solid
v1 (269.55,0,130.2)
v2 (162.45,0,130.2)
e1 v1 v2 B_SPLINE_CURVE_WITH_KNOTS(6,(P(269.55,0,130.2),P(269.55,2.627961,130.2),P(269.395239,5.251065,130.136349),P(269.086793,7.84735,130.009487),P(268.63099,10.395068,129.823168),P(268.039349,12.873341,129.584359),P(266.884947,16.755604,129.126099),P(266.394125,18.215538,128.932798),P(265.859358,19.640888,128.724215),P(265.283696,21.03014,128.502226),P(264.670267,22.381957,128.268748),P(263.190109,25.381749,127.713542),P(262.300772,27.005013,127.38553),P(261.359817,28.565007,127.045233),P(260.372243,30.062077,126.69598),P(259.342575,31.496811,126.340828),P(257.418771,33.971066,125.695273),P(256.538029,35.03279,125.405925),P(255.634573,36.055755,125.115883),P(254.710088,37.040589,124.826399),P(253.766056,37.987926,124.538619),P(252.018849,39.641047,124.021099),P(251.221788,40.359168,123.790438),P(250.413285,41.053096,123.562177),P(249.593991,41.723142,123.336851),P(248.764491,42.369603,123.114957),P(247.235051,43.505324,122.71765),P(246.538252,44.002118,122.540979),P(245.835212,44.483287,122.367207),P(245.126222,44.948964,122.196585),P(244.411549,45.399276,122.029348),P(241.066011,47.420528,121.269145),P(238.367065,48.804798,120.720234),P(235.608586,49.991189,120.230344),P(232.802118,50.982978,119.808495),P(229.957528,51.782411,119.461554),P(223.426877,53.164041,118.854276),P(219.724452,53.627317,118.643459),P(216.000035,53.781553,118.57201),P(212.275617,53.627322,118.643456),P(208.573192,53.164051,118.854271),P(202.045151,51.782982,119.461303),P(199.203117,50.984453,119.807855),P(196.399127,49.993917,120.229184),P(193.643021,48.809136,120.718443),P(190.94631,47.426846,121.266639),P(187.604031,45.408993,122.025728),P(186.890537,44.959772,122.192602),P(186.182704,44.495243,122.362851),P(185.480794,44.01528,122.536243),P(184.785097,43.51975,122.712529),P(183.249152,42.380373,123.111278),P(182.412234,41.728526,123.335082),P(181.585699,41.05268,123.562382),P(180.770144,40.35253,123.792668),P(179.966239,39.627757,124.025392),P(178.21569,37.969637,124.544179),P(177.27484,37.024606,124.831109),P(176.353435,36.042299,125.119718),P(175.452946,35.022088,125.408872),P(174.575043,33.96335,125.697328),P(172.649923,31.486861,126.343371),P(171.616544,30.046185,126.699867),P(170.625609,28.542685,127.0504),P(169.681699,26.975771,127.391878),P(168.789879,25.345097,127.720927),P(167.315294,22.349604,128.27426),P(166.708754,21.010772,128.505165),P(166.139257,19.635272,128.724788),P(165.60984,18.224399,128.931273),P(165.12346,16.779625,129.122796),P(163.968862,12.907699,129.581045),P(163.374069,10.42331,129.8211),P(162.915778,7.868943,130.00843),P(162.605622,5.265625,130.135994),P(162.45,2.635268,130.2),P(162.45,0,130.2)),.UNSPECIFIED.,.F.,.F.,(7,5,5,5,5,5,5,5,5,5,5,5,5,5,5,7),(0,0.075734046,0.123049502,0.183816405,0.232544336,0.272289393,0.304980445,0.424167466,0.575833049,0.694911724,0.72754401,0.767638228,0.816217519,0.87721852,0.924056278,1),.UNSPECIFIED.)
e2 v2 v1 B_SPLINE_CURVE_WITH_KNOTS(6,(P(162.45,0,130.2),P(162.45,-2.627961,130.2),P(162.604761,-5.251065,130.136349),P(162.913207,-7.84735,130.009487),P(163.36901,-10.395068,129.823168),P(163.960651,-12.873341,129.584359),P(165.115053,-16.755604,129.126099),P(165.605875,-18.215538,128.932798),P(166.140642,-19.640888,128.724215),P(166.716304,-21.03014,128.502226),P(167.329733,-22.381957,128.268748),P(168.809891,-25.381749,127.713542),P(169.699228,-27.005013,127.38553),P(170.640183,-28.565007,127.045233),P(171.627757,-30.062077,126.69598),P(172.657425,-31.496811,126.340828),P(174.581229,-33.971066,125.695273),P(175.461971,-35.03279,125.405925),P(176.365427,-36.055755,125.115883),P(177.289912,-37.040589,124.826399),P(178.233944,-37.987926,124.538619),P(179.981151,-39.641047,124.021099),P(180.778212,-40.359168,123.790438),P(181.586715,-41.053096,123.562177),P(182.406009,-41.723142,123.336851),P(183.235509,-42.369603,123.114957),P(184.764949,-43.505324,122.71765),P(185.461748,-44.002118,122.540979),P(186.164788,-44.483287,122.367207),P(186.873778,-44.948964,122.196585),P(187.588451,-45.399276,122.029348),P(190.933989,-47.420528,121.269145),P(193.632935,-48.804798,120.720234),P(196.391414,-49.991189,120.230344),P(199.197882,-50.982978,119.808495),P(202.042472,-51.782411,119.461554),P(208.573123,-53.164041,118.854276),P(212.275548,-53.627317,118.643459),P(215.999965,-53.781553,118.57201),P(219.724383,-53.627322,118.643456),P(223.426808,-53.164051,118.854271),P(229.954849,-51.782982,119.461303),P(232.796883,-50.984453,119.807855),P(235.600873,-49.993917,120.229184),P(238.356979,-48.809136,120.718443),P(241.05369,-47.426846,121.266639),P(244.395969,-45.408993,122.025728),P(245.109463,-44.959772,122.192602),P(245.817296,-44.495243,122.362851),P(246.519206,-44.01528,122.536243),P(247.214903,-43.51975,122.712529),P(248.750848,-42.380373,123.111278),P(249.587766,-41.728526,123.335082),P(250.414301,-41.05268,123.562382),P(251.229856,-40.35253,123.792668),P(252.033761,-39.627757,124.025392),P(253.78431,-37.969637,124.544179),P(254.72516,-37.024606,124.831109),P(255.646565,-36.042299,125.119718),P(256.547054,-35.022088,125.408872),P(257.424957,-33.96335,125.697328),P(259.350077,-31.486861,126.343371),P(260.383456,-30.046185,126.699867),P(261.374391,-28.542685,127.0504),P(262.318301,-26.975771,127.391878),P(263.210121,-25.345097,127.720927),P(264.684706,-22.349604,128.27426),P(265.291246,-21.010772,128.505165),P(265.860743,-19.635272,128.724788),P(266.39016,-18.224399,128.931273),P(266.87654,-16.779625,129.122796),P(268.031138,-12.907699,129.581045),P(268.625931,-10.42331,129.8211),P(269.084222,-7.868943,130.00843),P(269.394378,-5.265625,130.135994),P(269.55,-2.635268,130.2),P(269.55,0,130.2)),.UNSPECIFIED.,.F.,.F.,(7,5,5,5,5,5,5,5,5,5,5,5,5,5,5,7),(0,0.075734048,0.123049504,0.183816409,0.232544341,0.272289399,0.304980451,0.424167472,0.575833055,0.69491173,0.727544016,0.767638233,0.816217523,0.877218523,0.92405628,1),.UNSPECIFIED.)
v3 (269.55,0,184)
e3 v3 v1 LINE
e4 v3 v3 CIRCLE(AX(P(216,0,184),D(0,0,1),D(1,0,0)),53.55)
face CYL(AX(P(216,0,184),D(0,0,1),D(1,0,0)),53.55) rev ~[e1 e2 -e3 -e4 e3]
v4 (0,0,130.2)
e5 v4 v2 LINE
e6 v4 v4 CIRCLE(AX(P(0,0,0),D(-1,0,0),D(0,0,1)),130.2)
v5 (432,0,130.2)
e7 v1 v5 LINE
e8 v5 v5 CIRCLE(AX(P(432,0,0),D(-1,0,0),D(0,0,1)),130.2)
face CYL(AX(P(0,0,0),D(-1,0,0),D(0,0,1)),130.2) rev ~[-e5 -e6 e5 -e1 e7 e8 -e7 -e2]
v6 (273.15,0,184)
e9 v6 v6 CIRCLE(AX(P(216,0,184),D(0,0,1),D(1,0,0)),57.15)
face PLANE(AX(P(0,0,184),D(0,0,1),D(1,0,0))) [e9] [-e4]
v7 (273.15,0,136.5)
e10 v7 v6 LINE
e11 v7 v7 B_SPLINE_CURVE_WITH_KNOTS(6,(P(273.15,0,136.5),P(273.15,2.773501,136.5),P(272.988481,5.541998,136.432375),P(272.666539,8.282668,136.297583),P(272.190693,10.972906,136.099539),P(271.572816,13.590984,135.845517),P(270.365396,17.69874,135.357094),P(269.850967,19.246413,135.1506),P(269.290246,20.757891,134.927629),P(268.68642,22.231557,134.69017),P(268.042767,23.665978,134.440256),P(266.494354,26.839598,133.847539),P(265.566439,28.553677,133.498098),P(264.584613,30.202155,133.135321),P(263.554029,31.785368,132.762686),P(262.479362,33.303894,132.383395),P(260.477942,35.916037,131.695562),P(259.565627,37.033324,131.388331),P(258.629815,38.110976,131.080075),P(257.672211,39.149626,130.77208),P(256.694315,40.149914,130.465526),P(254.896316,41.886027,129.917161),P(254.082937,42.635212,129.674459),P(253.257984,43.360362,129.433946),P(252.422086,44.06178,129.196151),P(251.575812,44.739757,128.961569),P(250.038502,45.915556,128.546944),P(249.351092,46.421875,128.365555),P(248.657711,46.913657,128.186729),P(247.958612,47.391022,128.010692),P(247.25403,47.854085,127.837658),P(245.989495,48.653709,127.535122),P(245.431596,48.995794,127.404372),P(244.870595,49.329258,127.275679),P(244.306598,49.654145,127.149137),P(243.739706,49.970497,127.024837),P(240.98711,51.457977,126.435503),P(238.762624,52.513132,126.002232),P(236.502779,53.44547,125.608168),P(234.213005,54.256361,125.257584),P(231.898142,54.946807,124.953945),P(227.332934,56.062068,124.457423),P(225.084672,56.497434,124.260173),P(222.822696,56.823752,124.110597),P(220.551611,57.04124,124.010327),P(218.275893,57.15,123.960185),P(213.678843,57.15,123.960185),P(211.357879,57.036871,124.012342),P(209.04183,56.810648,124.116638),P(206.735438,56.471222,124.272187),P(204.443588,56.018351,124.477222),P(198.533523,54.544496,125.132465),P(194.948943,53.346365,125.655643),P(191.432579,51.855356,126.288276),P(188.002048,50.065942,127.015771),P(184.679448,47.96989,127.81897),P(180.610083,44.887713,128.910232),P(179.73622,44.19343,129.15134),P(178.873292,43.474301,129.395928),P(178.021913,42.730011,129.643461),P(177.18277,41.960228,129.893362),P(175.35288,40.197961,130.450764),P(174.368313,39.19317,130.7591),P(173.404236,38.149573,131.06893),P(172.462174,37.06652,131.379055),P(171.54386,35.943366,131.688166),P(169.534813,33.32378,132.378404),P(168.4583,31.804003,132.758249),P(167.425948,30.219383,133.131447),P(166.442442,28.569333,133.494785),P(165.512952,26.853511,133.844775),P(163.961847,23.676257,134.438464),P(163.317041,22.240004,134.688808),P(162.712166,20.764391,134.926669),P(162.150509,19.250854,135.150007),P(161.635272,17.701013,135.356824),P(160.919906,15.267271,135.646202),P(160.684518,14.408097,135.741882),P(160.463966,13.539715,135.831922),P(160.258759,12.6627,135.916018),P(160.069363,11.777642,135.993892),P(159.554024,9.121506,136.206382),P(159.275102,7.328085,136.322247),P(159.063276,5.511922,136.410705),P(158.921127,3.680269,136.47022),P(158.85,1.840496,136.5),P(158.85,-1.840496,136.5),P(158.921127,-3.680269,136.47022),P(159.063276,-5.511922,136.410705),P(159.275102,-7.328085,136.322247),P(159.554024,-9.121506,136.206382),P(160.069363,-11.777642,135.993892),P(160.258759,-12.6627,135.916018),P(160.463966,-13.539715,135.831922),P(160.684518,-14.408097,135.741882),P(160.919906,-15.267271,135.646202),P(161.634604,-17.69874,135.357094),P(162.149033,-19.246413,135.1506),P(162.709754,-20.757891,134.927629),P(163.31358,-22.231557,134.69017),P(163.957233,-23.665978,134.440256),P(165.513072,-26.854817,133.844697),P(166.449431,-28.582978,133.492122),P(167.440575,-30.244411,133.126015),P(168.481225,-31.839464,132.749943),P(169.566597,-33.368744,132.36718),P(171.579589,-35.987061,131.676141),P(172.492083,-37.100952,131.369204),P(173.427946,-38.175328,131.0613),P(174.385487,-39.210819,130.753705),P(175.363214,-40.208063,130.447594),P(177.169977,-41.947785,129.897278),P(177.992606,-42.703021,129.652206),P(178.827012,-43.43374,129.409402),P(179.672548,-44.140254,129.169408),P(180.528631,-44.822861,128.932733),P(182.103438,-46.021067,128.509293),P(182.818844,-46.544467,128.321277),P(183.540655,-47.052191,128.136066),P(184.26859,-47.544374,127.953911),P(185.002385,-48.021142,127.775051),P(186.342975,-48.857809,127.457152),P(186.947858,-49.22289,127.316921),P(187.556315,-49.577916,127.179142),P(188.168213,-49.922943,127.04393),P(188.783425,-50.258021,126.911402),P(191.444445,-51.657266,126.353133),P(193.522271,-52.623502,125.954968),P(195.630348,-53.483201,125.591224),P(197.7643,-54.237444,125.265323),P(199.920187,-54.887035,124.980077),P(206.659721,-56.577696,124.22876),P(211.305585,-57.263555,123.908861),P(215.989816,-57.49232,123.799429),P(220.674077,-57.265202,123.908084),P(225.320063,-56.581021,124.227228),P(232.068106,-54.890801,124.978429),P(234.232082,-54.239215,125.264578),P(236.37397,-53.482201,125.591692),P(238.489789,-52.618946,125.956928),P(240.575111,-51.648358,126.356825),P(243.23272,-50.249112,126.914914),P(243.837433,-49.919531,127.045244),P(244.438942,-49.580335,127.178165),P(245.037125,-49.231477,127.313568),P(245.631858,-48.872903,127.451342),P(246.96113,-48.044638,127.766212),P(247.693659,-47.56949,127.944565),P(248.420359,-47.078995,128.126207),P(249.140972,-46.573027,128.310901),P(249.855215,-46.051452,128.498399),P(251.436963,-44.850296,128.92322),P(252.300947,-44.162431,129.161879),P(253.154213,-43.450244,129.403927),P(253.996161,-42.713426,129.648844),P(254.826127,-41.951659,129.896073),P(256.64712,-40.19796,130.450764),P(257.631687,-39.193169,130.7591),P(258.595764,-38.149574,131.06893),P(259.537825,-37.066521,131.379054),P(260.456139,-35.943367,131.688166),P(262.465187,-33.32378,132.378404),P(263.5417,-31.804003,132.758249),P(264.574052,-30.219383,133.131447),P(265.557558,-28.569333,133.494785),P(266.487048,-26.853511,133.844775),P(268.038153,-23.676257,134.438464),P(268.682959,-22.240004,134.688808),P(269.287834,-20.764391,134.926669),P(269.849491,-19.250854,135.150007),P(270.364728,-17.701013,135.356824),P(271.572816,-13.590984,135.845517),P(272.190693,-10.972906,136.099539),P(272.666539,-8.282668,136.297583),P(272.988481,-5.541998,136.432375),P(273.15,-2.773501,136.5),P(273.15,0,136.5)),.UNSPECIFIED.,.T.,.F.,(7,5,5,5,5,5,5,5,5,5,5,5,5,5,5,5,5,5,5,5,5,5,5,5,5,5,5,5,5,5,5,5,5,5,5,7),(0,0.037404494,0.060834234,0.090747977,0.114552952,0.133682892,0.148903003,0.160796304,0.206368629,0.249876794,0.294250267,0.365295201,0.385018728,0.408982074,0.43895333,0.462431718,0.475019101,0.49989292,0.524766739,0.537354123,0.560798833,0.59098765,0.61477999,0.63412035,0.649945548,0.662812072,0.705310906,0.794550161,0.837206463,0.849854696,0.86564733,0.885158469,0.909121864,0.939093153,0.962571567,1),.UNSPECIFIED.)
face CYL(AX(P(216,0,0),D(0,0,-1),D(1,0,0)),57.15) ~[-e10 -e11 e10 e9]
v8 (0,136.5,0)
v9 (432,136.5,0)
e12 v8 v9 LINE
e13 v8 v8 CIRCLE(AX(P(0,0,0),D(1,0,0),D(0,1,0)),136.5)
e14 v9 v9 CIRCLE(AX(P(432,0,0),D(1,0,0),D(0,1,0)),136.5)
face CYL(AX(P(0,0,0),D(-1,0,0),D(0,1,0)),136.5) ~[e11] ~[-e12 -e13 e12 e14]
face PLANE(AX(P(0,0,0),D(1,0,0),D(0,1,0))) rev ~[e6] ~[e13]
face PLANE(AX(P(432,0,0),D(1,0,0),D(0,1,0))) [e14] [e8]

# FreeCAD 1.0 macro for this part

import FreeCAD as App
import Part
import Sketcher
from FreeCAD import Vector

doc = App.newDocument("Part")
body = doc.addObject("PartDesign::Body", "Body")

sketch1 = doc.addObject("Sketcher::SketchObject", "Sketch")
body.addObject(sketch1)
sketch1.AttachmentSupport = (doc.YZ_Plane, [""])
sketch1.MapMode = "FlatFace"
sketch1.addGeometry(Part.Circle(Vector(0, 0, 0), Vector(0, 0, 1), 136.5), False)
sketch1.addConstraint([
    Sketcher.Constraint("Coincident", 0, 3, -1, 1),
    Sketcher.Constraint("Diameter", 0, 273.0),
])
pad1 = doc.addObject("PartDesign::Pad", "Pad")
body.addObject(pad1)
pad1.Profile = sketch1
pad1.Length = 432

sketch2 = doc.addObject("Sketcher::SketchObject", "Sketch001")
body.addObject(sketch2)
sketch2.AttachmentSupport = (doc.XY_Plane, [""])
sketch2.MapMode = "FlatFace"
sketch2.addGeometry(Part.Circle(Vector(216, 0, 0), Vector(0, 0, 1), 57.15), False)
sketch2.addConstraint([
    Sketcher.Constraint("PointOnObject", 0, 3, -1),
    Sketcher.Constraint("Diameter", 0, 114.3),
    Sketcher.Constraint("DistanceX", -1, 1, 0, 3, 216.0),
])
pad2 = doc.addObject("PartDesign::Pad", "Pad001")
body.addObject(pad2)
pad2.Profile = sketch2
pad2.Length = 184

sketch3 = doc.addObject("Sketcher::SketchObject", "Sketch002")
body.addObject(sketch3)
sketch3.AttachmentSupport = (doc.YZ_Plane, [""])
sketch3.MapMode = "FlatFace"
sketch3.addGeometry(Part.Circle(Vector(0, 0, 0), Vector(0, 0, 1), 130.2), False)
sketch3.addConstraint([
    Sketcher.Constraint("Coincident", 0, 3, -1, 1),
    Sketcher.Constraint("Diameter", 0, 260.4),
])
pocket1 = doc.addObject("PartDesign::Pocket", "Pocket")
body.addObject(pocket1)
pocket1.Profile = sketch3
pocket1.Type = "ThroughAll"
pocket1.Reversed = True

sketch4 = doc.addObject("Sketcher::SketchObject", "Sketch003")
body.addObject(sketch4)
sketch4.AttachmentSupport = (doc.XY_Plane, [""])
sketch4.MapMode = "FlatFace"
sketch4.AttachmentOffset = App.Placement(Vector(0, 0, 184), App.Rotation())
sketch4.addGeometry(Part.Circle(Vector(216, 0, 0), Vector(0, 0, 1), 53.55), False)
sketch4.addConstraint([
    Sketcher.Constraint("PointOnObject", 0, 3, -1),
    Sketcher.Constraint("Diameter", 0, 107.1),
    Sketcher.Constraint("DistanceX", -1, 1, 0, 3, 216.0),
])
pocket2 = doc.addObject("PartDesign::Pocket", "Pocket001")
body.addObject(pocket2)
pocket2.Profile = sketch4
pocket2.Type = "UpToFirst"

doc.recompute()
